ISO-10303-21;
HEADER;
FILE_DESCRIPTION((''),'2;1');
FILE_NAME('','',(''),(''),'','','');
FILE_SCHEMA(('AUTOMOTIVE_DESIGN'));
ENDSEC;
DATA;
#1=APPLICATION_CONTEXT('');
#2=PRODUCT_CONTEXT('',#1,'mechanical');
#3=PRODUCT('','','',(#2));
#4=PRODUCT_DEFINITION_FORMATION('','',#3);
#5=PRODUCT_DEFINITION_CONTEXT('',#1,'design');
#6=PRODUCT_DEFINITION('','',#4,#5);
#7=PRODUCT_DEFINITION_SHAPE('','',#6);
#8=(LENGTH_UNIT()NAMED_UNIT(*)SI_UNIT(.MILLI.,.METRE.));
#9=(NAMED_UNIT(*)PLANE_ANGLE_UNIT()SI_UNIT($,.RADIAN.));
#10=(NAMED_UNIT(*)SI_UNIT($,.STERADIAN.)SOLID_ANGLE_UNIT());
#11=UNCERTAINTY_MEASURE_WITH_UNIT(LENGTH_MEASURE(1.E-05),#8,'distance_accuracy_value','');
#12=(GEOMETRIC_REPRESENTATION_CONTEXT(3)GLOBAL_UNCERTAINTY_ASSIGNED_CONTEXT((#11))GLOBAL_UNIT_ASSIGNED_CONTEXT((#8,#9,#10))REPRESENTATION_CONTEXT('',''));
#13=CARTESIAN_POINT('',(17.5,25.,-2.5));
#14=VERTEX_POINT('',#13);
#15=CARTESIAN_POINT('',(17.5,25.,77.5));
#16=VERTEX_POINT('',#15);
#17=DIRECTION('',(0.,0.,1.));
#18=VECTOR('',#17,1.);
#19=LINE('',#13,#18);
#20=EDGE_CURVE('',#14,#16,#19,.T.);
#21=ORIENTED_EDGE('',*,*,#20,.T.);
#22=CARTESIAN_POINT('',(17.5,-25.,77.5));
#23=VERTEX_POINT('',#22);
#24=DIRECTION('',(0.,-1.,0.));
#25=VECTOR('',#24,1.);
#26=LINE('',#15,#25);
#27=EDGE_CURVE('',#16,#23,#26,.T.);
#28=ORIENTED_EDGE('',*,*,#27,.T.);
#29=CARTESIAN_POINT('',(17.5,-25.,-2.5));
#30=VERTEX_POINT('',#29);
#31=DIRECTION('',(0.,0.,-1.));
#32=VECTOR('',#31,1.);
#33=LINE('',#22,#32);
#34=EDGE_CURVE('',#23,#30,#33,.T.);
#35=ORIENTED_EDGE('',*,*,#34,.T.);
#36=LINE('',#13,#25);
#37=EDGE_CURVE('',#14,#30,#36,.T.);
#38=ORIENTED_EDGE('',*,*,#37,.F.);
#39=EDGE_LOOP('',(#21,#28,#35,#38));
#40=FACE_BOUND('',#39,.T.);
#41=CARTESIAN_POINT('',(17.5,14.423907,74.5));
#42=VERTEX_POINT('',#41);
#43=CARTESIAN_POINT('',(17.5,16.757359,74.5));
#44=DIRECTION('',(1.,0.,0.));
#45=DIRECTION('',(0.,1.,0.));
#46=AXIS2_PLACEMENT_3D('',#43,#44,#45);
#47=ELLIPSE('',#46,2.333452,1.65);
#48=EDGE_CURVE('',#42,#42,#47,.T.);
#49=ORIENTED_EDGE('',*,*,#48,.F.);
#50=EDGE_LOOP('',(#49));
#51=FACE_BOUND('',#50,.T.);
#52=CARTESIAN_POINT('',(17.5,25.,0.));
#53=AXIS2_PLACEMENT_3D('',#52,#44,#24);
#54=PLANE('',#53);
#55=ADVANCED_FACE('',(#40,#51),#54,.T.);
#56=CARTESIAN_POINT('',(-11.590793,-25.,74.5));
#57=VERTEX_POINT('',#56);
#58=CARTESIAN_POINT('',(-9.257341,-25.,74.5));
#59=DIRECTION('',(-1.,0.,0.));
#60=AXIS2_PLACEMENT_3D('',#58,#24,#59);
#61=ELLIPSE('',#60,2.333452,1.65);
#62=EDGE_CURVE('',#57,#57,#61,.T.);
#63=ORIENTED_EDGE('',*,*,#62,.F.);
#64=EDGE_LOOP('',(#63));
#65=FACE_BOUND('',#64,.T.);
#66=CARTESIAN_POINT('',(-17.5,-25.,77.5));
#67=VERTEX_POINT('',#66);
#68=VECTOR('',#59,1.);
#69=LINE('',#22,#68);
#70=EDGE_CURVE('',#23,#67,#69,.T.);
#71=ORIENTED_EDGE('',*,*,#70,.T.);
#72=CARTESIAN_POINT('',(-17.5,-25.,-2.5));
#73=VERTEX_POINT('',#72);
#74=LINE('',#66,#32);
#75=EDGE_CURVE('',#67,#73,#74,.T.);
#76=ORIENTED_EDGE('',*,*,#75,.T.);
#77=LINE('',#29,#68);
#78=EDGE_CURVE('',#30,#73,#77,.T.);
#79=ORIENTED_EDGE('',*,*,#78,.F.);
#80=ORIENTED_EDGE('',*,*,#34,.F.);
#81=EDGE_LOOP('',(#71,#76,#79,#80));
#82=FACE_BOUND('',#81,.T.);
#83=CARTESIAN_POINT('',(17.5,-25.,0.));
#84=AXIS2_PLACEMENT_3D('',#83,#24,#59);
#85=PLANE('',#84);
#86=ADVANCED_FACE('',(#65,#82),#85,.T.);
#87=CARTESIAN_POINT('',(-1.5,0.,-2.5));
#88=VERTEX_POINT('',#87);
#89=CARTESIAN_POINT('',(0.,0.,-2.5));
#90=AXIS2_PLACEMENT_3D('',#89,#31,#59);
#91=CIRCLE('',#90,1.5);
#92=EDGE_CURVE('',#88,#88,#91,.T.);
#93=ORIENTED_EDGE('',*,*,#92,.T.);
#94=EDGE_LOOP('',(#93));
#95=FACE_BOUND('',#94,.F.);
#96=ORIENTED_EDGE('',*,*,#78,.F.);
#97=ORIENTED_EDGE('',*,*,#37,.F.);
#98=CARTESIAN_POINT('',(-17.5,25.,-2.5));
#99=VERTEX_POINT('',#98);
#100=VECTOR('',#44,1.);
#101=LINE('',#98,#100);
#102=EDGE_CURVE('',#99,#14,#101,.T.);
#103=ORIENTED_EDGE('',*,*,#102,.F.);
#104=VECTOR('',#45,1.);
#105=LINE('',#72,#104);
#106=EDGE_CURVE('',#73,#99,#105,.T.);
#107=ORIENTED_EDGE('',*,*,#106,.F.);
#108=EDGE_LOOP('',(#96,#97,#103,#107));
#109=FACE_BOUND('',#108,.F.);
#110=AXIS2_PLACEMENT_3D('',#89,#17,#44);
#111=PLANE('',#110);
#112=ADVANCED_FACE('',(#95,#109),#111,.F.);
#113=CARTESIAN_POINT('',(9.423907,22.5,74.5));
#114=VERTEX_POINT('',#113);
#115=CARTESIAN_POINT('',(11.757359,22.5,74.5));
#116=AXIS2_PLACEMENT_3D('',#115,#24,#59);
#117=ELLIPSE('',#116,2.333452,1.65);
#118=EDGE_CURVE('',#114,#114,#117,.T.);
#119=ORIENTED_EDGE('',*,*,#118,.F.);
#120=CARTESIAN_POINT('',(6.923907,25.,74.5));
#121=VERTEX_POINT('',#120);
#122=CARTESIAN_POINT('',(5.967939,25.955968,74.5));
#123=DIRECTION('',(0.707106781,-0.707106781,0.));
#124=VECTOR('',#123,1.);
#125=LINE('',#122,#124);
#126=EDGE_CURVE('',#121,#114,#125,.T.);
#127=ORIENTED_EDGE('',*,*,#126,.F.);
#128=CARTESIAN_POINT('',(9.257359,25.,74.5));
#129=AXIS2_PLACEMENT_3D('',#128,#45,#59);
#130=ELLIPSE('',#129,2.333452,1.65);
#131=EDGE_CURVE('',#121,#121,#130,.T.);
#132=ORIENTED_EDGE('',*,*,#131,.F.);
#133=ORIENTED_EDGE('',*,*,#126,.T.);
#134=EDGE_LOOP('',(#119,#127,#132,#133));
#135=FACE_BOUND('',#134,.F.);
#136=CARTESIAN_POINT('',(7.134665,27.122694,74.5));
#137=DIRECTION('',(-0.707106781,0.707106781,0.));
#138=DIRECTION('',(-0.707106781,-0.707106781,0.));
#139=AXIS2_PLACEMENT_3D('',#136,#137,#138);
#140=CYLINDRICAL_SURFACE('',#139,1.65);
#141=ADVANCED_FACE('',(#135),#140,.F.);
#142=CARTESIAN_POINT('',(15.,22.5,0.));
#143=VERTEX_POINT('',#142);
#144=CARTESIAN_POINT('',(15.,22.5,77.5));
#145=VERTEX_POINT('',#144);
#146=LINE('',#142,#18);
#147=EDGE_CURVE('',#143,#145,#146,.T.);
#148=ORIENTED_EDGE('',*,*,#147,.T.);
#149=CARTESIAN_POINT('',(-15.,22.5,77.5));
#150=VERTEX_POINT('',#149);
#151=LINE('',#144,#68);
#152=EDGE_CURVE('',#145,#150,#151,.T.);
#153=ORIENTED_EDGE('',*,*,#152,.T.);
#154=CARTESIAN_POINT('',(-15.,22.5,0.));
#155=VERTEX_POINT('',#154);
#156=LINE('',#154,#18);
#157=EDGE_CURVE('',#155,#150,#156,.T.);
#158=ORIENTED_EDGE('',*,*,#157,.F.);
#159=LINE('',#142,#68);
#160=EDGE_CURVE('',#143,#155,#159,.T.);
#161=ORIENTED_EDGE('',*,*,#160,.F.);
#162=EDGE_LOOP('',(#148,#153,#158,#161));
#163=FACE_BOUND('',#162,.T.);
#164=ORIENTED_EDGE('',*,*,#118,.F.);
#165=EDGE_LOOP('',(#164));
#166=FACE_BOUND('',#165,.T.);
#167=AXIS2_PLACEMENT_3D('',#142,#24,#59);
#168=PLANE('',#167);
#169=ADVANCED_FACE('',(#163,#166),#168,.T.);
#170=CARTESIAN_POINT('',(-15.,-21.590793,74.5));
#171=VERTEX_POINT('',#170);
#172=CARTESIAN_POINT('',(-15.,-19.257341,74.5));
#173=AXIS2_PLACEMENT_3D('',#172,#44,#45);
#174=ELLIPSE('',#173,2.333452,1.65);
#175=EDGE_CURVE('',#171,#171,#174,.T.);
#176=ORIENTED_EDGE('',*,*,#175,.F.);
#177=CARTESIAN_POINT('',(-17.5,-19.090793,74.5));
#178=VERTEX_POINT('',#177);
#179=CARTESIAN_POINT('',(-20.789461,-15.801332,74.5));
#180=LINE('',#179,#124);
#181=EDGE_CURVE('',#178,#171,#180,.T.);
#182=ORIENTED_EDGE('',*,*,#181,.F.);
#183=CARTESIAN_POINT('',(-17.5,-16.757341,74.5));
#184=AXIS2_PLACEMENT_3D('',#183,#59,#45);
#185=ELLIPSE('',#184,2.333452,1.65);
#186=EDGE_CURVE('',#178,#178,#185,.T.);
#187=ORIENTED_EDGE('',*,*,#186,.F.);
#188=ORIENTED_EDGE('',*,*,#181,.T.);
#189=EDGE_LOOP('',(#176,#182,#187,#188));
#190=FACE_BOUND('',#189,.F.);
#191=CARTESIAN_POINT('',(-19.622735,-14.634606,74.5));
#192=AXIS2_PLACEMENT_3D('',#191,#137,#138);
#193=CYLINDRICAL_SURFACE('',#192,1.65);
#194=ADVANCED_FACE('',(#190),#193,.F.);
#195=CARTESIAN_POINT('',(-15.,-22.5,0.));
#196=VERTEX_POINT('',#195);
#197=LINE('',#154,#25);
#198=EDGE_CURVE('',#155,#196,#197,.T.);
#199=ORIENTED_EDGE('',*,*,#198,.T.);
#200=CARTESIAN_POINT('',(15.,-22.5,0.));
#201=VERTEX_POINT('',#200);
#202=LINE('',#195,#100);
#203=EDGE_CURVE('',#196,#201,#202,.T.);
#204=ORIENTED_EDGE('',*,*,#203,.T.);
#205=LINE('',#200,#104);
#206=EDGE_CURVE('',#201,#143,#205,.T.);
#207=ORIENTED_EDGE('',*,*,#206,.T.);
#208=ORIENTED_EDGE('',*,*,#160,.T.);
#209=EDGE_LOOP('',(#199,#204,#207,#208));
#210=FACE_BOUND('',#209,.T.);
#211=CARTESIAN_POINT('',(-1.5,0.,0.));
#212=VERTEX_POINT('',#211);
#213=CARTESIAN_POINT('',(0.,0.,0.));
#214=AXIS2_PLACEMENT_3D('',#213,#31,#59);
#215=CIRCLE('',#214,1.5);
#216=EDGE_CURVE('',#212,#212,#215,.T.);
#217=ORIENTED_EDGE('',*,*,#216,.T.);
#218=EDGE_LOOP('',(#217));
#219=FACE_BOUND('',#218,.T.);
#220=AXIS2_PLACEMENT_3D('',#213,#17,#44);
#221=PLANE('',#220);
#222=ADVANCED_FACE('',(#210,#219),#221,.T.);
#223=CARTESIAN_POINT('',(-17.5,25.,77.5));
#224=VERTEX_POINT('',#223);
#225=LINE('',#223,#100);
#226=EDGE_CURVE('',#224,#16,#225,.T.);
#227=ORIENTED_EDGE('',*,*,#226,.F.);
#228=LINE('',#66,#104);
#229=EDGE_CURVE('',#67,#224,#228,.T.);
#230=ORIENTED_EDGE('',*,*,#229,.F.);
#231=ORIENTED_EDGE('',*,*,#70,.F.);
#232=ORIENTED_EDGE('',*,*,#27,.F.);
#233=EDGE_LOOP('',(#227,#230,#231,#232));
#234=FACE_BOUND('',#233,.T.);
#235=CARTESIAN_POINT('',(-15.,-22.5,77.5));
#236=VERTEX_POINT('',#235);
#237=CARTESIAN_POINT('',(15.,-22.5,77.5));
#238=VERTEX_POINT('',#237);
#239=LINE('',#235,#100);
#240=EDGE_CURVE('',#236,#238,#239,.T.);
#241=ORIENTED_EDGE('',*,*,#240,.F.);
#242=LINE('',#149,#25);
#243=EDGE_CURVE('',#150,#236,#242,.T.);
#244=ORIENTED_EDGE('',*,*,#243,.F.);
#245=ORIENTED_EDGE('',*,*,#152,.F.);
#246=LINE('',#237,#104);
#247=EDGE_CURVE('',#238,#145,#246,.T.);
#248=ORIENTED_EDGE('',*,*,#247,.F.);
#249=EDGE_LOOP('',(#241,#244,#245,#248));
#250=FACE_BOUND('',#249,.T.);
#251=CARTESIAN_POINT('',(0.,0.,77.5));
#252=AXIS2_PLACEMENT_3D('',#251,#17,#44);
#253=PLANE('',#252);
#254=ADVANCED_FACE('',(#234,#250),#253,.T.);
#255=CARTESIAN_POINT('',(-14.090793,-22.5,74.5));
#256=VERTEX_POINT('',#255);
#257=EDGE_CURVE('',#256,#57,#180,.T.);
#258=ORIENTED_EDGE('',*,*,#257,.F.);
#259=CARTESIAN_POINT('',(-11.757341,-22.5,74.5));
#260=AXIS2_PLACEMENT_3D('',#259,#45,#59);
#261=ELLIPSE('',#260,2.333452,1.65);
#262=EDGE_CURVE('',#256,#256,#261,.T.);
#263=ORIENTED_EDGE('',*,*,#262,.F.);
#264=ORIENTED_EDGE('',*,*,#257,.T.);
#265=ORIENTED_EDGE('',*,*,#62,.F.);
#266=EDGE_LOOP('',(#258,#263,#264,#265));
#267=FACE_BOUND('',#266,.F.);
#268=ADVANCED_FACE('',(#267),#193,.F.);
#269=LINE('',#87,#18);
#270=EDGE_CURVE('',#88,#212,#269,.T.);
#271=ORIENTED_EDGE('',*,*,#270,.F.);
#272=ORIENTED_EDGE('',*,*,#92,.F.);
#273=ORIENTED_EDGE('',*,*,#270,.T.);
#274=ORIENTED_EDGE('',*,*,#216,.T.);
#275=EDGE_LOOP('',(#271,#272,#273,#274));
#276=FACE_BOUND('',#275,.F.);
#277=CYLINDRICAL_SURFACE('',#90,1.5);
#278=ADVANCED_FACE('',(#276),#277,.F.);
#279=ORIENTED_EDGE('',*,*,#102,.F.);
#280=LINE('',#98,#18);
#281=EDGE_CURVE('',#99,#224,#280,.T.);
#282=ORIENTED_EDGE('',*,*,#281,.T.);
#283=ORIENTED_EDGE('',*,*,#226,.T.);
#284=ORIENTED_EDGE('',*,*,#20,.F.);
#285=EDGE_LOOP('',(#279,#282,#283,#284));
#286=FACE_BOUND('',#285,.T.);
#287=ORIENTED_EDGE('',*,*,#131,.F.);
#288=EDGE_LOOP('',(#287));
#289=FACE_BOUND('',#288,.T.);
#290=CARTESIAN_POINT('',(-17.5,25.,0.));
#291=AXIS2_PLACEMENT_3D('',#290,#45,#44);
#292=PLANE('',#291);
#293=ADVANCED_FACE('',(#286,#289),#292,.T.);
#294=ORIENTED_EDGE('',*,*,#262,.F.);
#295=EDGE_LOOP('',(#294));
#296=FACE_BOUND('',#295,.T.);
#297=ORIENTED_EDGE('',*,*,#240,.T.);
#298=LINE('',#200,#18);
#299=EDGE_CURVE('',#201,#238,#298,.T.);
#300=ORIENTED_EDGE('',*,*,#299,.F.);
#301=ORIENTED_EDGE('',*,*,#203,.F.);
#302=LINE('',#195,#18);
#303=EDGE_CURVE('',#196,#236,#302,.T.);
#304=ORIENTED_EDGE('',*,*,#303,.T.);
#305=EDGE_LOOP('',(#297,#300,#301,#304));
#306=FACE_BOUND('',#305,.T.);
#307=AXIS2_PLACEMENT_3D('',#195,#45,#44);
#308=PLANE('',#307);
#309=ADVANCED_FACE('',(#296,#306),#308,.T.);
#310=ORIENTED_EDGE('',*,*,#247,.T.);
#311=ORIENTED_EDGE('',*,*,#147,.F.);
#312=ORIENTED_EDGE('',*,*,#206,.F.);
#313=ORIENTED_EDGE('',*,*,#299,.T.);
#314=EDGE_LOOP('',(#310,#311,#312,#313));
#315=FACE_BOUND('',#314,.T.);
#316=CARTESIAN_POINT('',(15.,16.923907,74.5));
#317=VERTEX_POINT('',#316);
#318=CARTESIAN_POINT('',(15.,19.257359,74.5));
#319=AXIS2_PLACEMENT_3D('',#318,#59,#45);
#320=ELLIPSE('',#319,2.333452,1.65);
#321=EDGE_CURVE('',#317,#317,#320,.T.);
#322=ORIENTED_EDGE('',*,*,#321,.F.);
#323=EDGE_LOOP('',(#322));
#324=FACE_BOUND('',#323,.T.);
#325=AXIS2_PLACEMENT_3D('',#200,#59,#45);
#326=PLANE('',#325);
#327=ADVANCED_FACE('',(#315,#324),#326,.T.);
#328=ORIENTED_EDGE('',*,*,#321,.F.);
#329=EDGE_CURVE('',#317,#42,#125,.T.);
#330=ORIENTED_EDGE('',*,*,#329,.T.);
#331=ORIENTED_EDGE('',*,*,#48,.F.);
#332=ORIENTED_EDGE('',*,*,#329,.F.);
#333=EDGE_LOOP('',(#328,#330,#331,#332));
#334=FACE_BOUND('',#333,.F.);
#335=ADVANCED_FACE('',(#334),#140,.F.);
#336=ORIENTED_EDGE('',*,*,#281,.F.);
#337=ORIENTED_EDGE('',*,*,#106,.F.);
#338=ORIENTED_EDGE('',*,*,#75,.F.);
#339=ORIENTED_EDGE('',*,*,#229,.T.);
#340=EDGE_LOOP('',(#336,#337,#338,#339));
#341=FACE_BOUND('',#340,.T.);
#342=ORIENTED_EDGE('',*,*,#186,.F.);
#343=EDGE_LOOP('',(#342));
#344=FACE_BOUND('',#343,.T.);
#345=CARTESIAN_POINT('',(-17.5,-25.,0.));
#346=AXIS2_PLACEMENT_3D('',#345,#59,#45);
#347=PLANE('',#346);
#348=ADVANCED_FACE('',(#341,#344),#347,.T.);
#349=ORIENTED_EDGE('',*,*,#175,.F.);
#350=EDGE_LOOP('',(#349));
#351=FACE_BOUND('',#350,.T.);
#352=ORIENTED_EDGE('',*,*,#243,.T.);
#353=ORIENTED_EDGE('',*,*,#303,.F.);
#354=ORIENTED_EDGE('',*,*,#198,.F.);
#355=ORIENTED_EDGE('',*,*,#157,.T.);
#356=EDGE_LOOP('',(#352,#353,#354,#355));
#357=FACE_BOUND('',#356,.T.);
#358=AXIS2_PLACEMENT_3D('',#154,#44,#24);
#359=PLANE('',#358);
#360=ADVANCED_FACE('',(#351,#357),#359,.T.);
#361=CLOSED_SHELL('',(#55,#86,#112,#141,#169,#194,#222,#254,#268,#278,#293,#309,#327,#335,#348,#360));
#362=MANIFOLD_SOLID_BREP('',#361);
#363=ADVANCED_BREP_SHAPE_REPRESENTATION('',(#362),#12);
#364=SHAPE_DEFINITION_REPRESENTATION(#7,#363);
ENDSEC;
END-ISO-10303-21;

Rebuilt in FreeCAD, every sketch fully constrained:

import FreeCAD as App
import Part
import Sketcher

V = App.Vector


def add_polygon(sketch, points):
    """Adds a closed chain of lines whose ends are joined by coincident constraints."""
    first, n = sketch.GeometryCount, len(points)
    for a, b in zip(points, points[1:] + points[:1]):
        sketch.addGeometry(Part.LineSegment(App.Vector(*a, 0), App.Vector(*b, 0)), False)
    for i in range(n):
        sketch.addConstraint(Sketcher.Constraint("Coincident", first + i, 2, first + (i + 1) % n, 1))

doc = App.newDocument("Part")
params = doc.addObject("Spreadsheet::Sheet", "Params")
for row, (alias, value) in enumerate([
    ("sketch1_width", "35 mm"),
    ("sketch1_height", "50 mm"),
    ("pad1_length", "2.5 mm"),
    ("sketch2_width", "30 mm"),
    ("sketch2_height", "45 mm"),
    ("pad2_length", "77.5 mm"),
    ("sketch3_diameter", "3 mm"),
    ("pocket1_length", "2.5 mm"),
    ("sketch4_length", "6 mm"),
    ("pad3_length", "6 mm"),
    ("sketch5_diameter", "3.3 mm"),
    ("pocket2_length", "17.6569 mm"),
    ("sketch6_diameter", "3.3 mm"),
    ("pocket3_length", "17.6569 mm"),
    ("sketch7_width", "35 mm"),
    ("sketch7_height", "50 mm"),
    ("pocket4_length", "6 mm"),
], start=1):
    params.set(f"A{row}", alias)
    params.set(f"B{row}", "=" + value)
    params.setAlias(f"B{row}", alias)

body = doc.addObject("PartDesign::Body", "Body")

sketch1 = body.newObject("Sketcher::SketchObject", "Sketch")
sketch1.AttachmentSupport = (doc.getObject("XY_Plane"), [""])
sketch1.MapMode = "FlatFace"
add_polygon(sketch1, [(17.5, -25), (17.5, 25), (-17.5, 25), (-17.5, -25)])
sketch1.addConstraint([
    Sketcher.Constraint("Vertical", 0),
    Sketcher.Constraint("Horizontal", 1),
    Sketcher.Constraint("Vertical", 2),
    Sketcher.Constraint("Horizontal", 3),
    Sketcher.Constraint("Symmetric", 0, 2, 2, 2, -1, 1),
    Sketcher.Constraint("DistanceX", 1, 2, 1, 1, 35.0),
    Sketcher.Constraint("DistanceY", 0, 1, 0, 2, 50.0),
])
sketch1.setExpression("Constraints[9]", "Params.sketch1_width")
sketch1.setExpression("Constraints[10]", "Params.sketch1_height")
pad1 = body.newObject("PartDesign::Pad", "Pad")
pad1.Profile = sketch1
pad1.setExpression("Length", "Params.pad1_length")
pad1.Reversed = True

sketch2 = body.newObject("Sketcher::SketchObject", "Sketch001")
sketch2.AttachmentSupport = (doc.getObject("XY_Plane"), [""])
sketch2.MapMode = "FlatFace"
add_polygon(sketch2, [(17.5, -25), (17.5, 25), (-17.5, 25), (-17.5, -25)])
add_polygon(sketch2, [(15, -22.5), (-15, -22.5), (-15, 22.5), (15, 22.5)])
sketch2.addConstraint([
    Sketcher.Constraint("Vertical", 0),
    Sketcher.Constraint("Horizontal", 1),
    Sketcher.Constraint("Vertical", 2),
    Sketcher.Constraint("Horizontal", 3),
    Sketcher.Constraint("Horizontal", 4),
    Sketcher.Constraint("Vertical", 5),
    Sketcher.Constraint("Horizontal", 6),
    Sketcher.Constraint("Vertical", 7),
    Sketcher.Constraint("Symmetric", 0, 2, 2, 2, -1, 1),
    Sketcher.Constraint("Symmetric", 4, 2, 6, 2, -1, 1),
    Sketcher.Constraint("DistanceX", 4, 2, 4, 1, 30.0),
    Sketcher.Constraint("DistanceY", 5, 1, 5, 2, 45.0),
    Sketcher.Constraint("DistanceX", 2, 2, 4, 2, 2.5),
    Sketcher.Constraint("DistanceY", 2, 2, 4, 2, 2.5),
])
sketch2.setExpression("Constraints[18]", "Params.sketch2_width")
sketch2.setExpression("Constraints[19]", "Params.sketch2_height")
pad2 = body.newObject("PartDesign::Pad", "Pad001")
pad2.Profile = sketch2
pad2.setExpression("Length", "Params.pad2_length")

sketch3 = body.newObject("Sketcher::SketchObject", "Sketch002")
sketch3.AttachmentSupport = (doc.getObject("XY_Plane"), [""])
sketch3.MapMode = "FlatFace"
sketch3.AttachmentOffset = App.Placement(V(0, 0, -2.5), App.Rotation())
sketch3.addGeometry(Part.Circle(V(0, 0, 0), V(0, 0, 1), 1.5), False)
sketch3.addConstraint([
    Sketcher.Constraint("Coincident", 0, 3, -1, 1),
    Sketcher.Constraint("Diameter", 0, 3.0),
])
sketch3.setExpression("Constraints[1]", "Params.sketch3_diameter")
pocket1 = body.newObject("PartDesign::Pocket", "Pocket")
pocket1.Profile = sketch3
pocket1.setExpression("Length", "Params.pocket1_length")
pocket1.Reversed = True

sketch4 = body.newObject("Sketcher::SketchObject", "Sketch003")
sketch4.AttachmentSupport = (doc.getObject("XY_Plane"), [""])
sketch4.MapMode = "FlatFace"
sketch4.AttachmentOffset = App.Placement(V(0, 0, 77.5), App.Rotation())
add_polygon(sketch4, [(9.2574, 29.2426), (5.0147, 25), (13.5, 25)])
add_polygon(sketch4, [(-17.5, -21), (-17.5, -12.5147), (-21.7426, -16.7574)])
add_polygon(sketch4, [(21.7426, 16.7574), (17.5, 21), (17.5, 12.5147)])
add_polygon(sketch4, [(-5.0147, -25), (-13.5, -25), (-9.2574, -29.2426)])
sketch4.addConstraint([
    Sketcher.Constraint("Horizontal", 1),
    Sketcher.Constraint("Vertical", 3),
    Sketcher.Constraint("Vertical", 7),
    Sketcher.Constraint("Horizontal", 9),
    Sketcher.Constraint("Symmetric", 5, 2, 6, 2, -1, 1),
    Sketcher.Constraint("Symmetric", 4, 2, 8, 2, -1, 1),
    Sketcher.Constraint("Symmetric", 1, 2, 9, 2, -1, 1),
    Sketcher.Constraint("Symmetric", 2, 2, 10, 2, -1, 1),
    Sketcher.Constraint("Perpendicular", 0, 2),
    Sketcher.Constraint("Perpendicular", 2, 4),
    Sketcher.Constraint("Perpendicular", 4, 5),
    Sketcher.Constraint("Perpendicular", 6, 8),
    Sketcher.Constraint("Perpendicular", 10, 11),
    Sketcher.Constraint("Equal", 9, 3),
    Sketcher.Constraint("Equal", 0, 2),
    Sketcher.Constraint("Distance", 0, 6.0),
    Sketcher.Constraint("DistanceX", 1, 2, 6, 2, 4.0),
    Sketcher.Constraint("DistanceY", 6, 2, 1, 2, 4.0),
    Sketcher.Constraint("DistanceY", -1, 1, 0, 2, 25.0),
    Sketcher.Constraint("DistanceX", 3, 2, 1, 2, 31.0),
])
sketch4.setExpression("Constraints[27]", "Params.sketch4_length")
pad3 = body.newObject("PartDesign::Pad", "Pad002")
pad3.Profile = sketch4
pad3.setExpression("Length", "Params.pad3_length")
pad3.Reversed = True

sketch5 = body.newObject("Sketcher::SketchObject", "Sketch004")
sketch5.Placement = App.Placement(V(9.2574, 29.2426, 71.5), App.Rotation(V(-0.707106781, -0.707106781, 0), V(0, 0, 0.999999999), V(-0.707106781, 0.707106781, 0), "ZXY"))
sketch5.addGeometry(Part.Circle(V(3, 3, 0), V(0, 0, 1), 1.65), False)
sketch5.addConstraint([
    Sketcher.Constraint("Diameter", 0, 3.3),
    Sketcher.Constraint("DistanceX", -1, 1, 0, 3, 3.0),
    Sketcher.Constraint("DistanceY", -1, 1, 0, 3, 3.0),
])
sketch5.setExpression("Constraints[0]", "Params.sketch5_diameter")
pocket2 = body.newObject("PartDesign::Pocket", "Pocket001")
pocket2.Profile = sketch5
pocket2.setExpression("Length", "Params.pocket2_length")

sketch6 = body.newObject("Sketcher::SketchObject", "Sketch005")
sketch6.Placement = App.Placement(V(-17.5, -12.5147, 71.5), App.Rotation(V(-0.707106781, -0.707106781, 0), V(0, 0, 0.999999999), V(-0.707106781, 0.707106781, 0), "ZXY"))
sketch6.addGeometry(Part.Circle(V(3, 3, 0), V(0, 0, 1), 1.65), False)
sketch6.addConstraint([
    Sketcher.Constraint("Diameter", 0, 3.3),
    Sketcher.Constraint("DistanceX", -1, 1, 0, 3, 3.0),
    Sketcher.Constraint("DistanceY", -1, 1, 0, 3, 3.0),
])
sketch6.setExpression("Constraints[0]", "Params.sketch6_diameter")
pocket3 = body.newObject("PartDesign::Pocket", "Pocket002")
pocket3.Profile = sketch6
pocket3.setExpression("Length", "Params.pocket3_length")

sketch7 = body.newObject("Sketcher::SketchObject", "Sketch006")
sketch7.AttachmentSupport = (doc.getObject("XY_Plane"), [""])
sketch7.MapMode = "FlatFace"
sketch7.AttachmentOffset = App.Placement(V(0, 0, 77.5), App.Rotation())
add_polygon(sketch7, [(-21.7426, 29.2426), (-21.7426, -29.2426), (21.7426, -29.2426), (21.7426, 29.2426)])
add_polygon(sketch7, [(-17.5, 25), (17.5, 25), (17.5, -25), (-17.5, -25)])
sketch7.addConstraint([
    Sketcher.Constraint("Vertical", 0),
    Sketcher.Constraint("Horizontal", 1),
    Sketcher.Constraint("Vertical", 2),
    Sketcher.Constraint("Horizontal", 3),
    Sketcher.Constraint("Horizontal", 4),
    Sketcher.Constraint("Vertical", 5),
    Sketcher.Constraint("Horizontal", 6),
    Sketcher.Constraint("Vertical", 7),
    Sketcher.Constraint("Symmetric", 0, 2, 2, 2, -1, 1),
    Sketcher.Constraint("Symmetric", 4, 2, 6, 2, -1, 1),
    Sketcher.Constraint("DistanceX", 4, 1, 4, 2, 35.0),
    Sketcher.Constraint("DistanceY", 5, 2, 5, 1, 50.0),
    Sketcher.Constraint("DistanceX", 1, 1, 1, 2, 43.4852),
    Sketcher.Constraint("DistanceY", 0, 2, 0, 1, 58.4852),
])
sketch7.setExpression("Constraints[18]", "Params.sketch7_width")
sketch7.setExpression("Constraints[19]", "Params.sketch7_height")
pocket4 = body.newObject("PartDesign::Pocket", "Pocket003")
pocket4.Profile = sketch7
pocket4.setExpression("Length", "Params.pocket4_length")

doc.recompute()
